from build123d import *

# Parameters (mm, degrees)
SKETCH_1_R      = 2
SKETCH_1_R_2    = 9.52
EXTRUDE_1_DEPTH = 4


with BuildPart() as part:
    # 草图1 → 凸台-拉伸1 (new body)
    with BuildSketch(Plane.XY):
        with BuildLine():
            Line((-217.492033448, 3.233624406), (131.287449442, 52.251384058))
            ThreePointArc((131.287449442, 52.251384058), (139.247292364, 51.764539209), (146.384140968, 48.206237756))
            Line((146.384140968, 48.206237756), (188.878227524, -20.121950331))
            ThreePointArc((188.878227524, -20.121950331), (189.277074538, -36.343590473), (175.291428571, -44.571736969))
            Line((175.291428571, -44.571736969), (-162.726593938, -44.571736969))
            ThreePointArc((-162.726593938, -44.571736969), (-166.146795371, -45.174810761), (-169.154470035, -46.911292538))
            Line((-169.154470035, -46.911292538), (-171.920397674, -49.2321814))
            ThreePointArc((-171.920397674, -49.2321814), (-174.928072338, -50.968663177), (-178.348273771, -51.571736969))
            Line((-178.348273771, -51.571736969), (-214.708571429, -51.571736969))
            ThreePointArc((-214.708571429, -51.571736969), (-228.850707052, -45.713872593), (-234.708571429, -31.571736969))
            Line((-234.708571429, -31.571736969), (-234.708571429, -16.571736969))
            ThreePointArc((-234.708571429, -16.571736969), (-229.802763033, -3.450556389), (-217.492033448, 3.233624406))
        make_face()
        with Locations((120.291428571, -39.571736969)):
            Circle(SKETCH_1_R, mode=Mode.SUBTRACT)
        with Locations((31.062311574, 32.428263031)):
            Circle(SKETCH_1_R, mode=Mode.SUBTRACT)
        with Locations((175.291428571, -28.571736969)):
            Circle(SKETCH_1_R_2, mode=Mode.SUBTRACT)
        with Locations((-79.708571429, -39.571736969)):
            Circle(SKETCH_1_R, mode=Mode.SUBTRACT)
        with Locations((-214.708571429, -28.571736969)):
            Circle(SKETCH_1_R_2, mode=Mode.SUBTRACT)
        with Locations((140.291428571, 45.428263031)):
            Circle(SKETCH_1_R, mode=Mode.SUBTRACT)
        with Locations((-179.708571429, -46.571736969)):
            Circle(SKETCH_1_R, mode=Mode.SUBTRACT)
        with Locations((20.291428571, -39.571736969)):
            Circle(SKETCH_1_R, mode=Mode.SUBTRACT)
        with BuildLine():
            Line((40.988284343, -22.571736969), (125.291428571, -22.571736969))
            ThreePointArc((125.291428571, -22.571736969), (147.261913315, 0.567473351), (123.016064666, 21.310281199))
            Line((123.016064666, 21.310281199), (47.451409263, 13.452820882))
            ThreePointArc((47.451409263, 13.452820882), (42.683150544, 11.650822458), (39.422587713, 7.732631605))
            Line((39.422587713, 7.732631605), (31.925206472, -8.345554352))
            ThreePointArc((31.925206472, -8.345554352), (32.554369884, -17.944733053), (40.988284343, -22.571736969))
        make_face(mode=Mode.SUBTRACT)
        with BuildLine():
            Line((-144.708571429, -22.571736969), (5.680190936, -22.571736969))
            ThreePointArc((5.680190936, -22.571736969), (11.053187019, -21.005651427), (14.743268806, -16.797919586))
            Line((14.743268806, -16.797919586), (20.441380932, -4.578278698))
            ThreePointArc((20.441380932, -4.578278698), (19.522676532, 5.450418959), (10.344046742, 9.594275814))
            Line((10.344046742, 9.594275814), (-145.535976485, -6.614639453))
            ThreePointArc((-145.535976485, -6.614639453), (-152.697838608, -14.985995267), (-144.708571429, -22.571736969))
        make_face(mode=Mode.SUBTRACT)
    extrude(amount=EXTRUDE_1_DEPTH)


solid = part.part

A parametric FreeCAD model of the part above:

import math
import FreeCAD as App
import Part
import Sketcher
from FreeCAD import Vector
Q = App.Units.Quantity

doc = App.newDocument("Part")
body = doc.addObject("PartDesign::Body", "Body")

# Sketch on XY plane
sketch1 = body.newObject("Sketcher::SketchObject", "Sketch")
sketch1.AttachmentSupport = (doc.getObject("XY_Plane"), [""])
sketch1.MapMode = "FlatFace"
sketch1.addGeometry(Part.LineSegment(Vector(131.287449, 52.251384, 0), Vector(-217.492033, 3.233624, 0)), False)
sketch1.addGeometry(Part.ArcOfCircle(Part.Circle(Vector(-214.708571, -16.571737, 0), Vector(0, 0, 1), 20), math.radians(98), math.radians(180)), False)
sketch1.addGeometry(Part.LineSegment(Vector(-234.708571, -16.571737, 0), Vector(-234.708571, -31.571737, 0)), False)
sketch1.addGeometry(Part.ArcOfCircle(Part.Circle(Vector(-214.708571, -31.571737, 0), Vector(0, 0, 1), 20), math.radians(-180), math.radians(-90)), False)
sketch1.addGeometry(Part.LineSegment(Vector(-214.708571, -51.571737, 0), Vector(-178.348274, -51.571737, 0)), False)
sketch1.addGeometry(Part.ArcOfCircle(Part.Circle(Vector(-178.348274, -41.571737, 0), Vector(0, 0, 1), 10), math.radians(-90), math.radians(-50)), False)
sketch1.addGeometry(Part.LineSegment(Vector(-171.920398, -49.232181, 0), Vector(-169.15447, -46.911293, 0)), False)
sketch1.addGeometry(Part.ArcOfCircle(Part.Circle(Vector(-162.726594, -54.571737, 0), Vector(0, 0, 1), 10), math.radians(90), math.radians(130)), False)
sketch1.addGeometry(Part.LineSegment(Vector(-162.726594, -44.571737, 0), Vector(175.291429, -44.571737, 0)), False)
sketch1.addGeometry(Part.ArcOfCircle(Part.Circle(Vector(175.291429, -28.571737, 0), Vector(0, 0, 1), 16), math.radians(-90), math.radians(31.877956)), False)
sketch1.addGeometry(Part.LineSegment(Vector(188.878228, -20.12195, 0), Vector(146.384141, 48.206238, 0)), False)
sketch1.addGeometry(Part.ArcOfCircle(Part.Circle(Vector(134.070911, 32.446023, 0), Vector(0, 0, 1), 20), math.radians(52), math.radians(98)), False)
sketch1.addGeometry(Part.Circle(Vector(120.291429, -39.571737, 0), Vector(0, 0, 1), 2), False)
sketch1.addGeometry(Part.Circle(Vector(175.291429, -28.571737, 0), Vector(0, 0, 1), 9.52), False)
sketch1.addGeometry(Part.Circle(Vector(20.291429, -39.571737, 0), Vector(0, 0, 1), 2), False)
sketch1.addGeometry(Part.Circle(Vector(-79.708571, -39.571737, 0), Vector(0, 0, 1), 2), False)
sketch1.addGeometry(Part.Circle(Vector(-179.708571, -46.571737, 0), Vector(0, 0, 1), 2), False)
sketch1.addGeometry(Part.Circle(Vector(-214.708571, -28.571737, 0), Vector(0, 0, 1), 9.52), False)
sketch1.addGeometry(Part.ArcOfCircle(Part.Circle(Vector(-144.708571, -14.571737, 0), Vector(0, 0, 1), 8), math.radians(95.936468), math.radians(270)), False)
sketch1.addGeometry(Part.LineSegment(Vector(-145.535976, -6.614639, 0), Vector(10.344047, 9.594276, 0)), False)
sketch1.addGeometry(Part.ArcOfCircle(Part.Circle(Vector(11.378303, -0.352096, 0), Vector(0, 0, 1), 10), math.radians(-25), math.radians(95.936468)), False)
sketch1.addGeometry(Part.LineSegment(Vector(20.441381, -4.578279, 0), Vector(14.743269, -16.79792, 0)), False)
sketch1.addGeometry(Part.ArcOfCircle(Part.Circle(Vector(5.680191, -12.571737, 0), Vector(0, 0, 1), 10), math.radians(-90), math.radians(-25)), False)
sketch1.addGeometry(Part.LineSegment(Vector(5.680191, -22.571737, 0), Vector(-144.708571, -22.571737, 0)), False)
sketch1.addGeometry(Part.ArcOfCircle(Part.Circle(Vector(40.988284, -12.571737, 0), Vector(0, 0, 1), 10), math.radians(155), math.radians(270)), False)
sketch1.addGeometry(Part.LineSegment(Vector(31.925206, -8.345554, 0), Vector(39.422588, 7.732632, 0)), False)
sketch1.addGeometry(Part.ArcOfCircle(Part.Circle(Vector(48.485666, 3.506449, 0), Vector(0, 0, 1), 10), math.radians(95.936468), math.radians(155)), False)
sketch1.addGeometry(Part.LineSegment(Vector(47.451409, 13.452821, 0), Vector(123.016065, 21.310281, 0)), False)
sketch1.addGeometry(Part.ArcOfCircle(Part.Circle(Vector(125.291429, -0.571737, 0), Vector(0, 0, 1), 22), math.radians(-90), math.radians(95.936468)), False)
sketch1.addGeometry(Part.LineSegment(Vector(125.291429, -22.571737, 0), Vector(40.988284, -22.571737, 0)), False)
sketch1.addGeometry(Part.Circle(Vector(140.291429, 45.428263, 0), Vector(0, 0, 1), 2), False)
sketch1.addGeometry(Part.Circle(Vector(31.062312, 32.428263, 0), Vector(0, 0, 1), 2), False)
sketch1.addConstraint(Sketcher.Constraint("Tangent", 0, 2, 1, 1))
sketch1.addConstraint(Sketcher.Constraint("Tangent", 1, 2, 2, 1))
sketch1.addConstraint(Sketcher.Constraint("Tangent", 2, 2, 3, 1))
sketch1.addConstraint(Sketcher.Constraint("Tangent", 3, 2, 4, 1))
sketch1.addConstraint(Sketcher.Constraint("Tangent", 4, 2, 5, 1))
sketch1.addConstraint(Sketcher.Constraint("Tangent", 5, 2, 6, 1))
sketch1.addConstraint(Sketcher.Constraint("Tangent", 6, 2, 7, 2))
sketch1.addConstraint(Sketcher.Constraint("Tangent", 7, 1, 8, 1))
sketch1.addConstraint(Sketcher.Constraint("Tangent", 8, 2, 9, 1))
sketch1.addConstraint(Sketcher.Constraint("Tangent", 9, 2, 10, 1))
sketch1.addConstraint(Sketcher.Constraint("Coincident", 10, 2, 11, 1))
sketch1.addConstraint(Sketcher.Constraint("Tangent", 11, 2, 0, 1))
sketch1.addConstraint(Sketcher.Constraint("Tangent", 18, 1, 19, 1))
sketch1.addConstraint(Sketcher.Constraint("Tangent", 19, 2, 20, 2))
sketch1.addConstraint(Sketcher.Constraint("Tangent", 20, 1, 21, 1))
sketch1.addConstraint(Sketcher.Constraint("Tangent", 21, 2, 22, 2))
sketch1.addConstraint(Sketcher.Constraint("Tangent", 22, 1, 23, 1))
sketch1.addConstraint(Sketcher.Constraint("Tangent", 23, 2, 18, 2))
sketch1.addConstraint(Sketcher.Constraint("Tangent", 24, 1, 25, 1))
sketch1.addConstraint(Sketcher.Constraint("Tangent", 25, 2, 26, 2))
sketch1.addConstraint(Sketcher.Constraint("Tangent", 26, 1, 27, 1))
sketch1.addConstraint(Sketcher.Constraint("Tangent", 27, 2, 28, 2))
sketch1.addConstraint(Sketcher.Constraint("Tangent", 28, 1, 29, 1))
sketch1.addConstraint(Sketcher.Constraint("Tangent", 29, 2, 24, 2))
sketch1.addConstraint(Sketcher.Constraint("Vertical", 2))
sketch1.addConstraint(Sketcher.Constraint("Horizontal", 4))
sketch1.addConstraint(Sketcher.Constraint("Horizontal", 8))
sketch1.addConstraint(Sketcher.Constraint("Horizontal", 23))
sketch1.addConstraint(Sketcher.Constraint("Horizontal", 29))
sketch1.addConstraint(Sketcher.Constraint("Coincident", 13, 3, 9, 3))
sketch1.addConstraint(Sketcher.Constraint("Equal", 1, 3))
sketch1.addConstraint(Sketcher.Constraint("Equal", 5, 7))
sketch1.addConstraint(Sketcher.Constraint("Equal", 3, 11))
sketch1.addConstraint(Sketcher.Constraint("Equal", 12, 14))
sketch1.addConstraint(Sketcher.Constraint("Equal", 14, 15))
sketch1.addConstraint(Sketcher.Constraint("Equal", 15, 16))
sketch1.addConstraint(Sketcher.Constraint("Equal", 13, 17))
sketch1.addConstraint(Sketcher.Constraint("Equal", 7, 20))
sketch1.addConstraint(Sketcher.Constraint("Equal", 20, 22))
sketch1.addConstraint(Sketcher.Constraint("Equal", 22, 24))
sketch1.addConstraint(Sketcher.Constraint("Equal", 24, 26))
sketch1.addConstraint(Sketcher.Constraint("Equal", 16, 30))
sketch1.addConstraint(Sketcher.Constraint("Equal", 30, 31))
sketch1.addConstraint(Sketcher.Constraint("Parallel", 21, 25))
sketch1.addConstraint(Sketcher.Constraint("Parallel", 19, 27))
sketch1.addConstraint(Sketcher.Constraint("Horizontal", 12, 3, 14, 3))
sketch1.addConstraint(Sketcher.Constraint("Horizontal", 14, 3, 15, 3))
sketch1.addConstraint(Sketcher.Constraint("Horizontal", 13, 3, 17, 3))
sketch1.addConstraint(Sketcher.Constraint("Horizontal", 22, 3, 24, 3))
sketch1.addConstraint(Sketcher.Constraint("Vertical", 3, 3, 17, 3))
sketch1.addConstraint(Sketcher.Constraint("Diameter", 12, Q("4 mm")))
sketch1.addConstraint(Sketcher.Constraint("Radius", 1, Q("20 mm")))
sketch1.addConstraint(Sketcher.Constraint("Radius", 5, Q("10 mm")))
sketch1.addConstraint(Sketcher.Constraint("Radius", 9, Q("16 mm")))
sketch1.addConstraint(Sketcher.Constraint("Radius", 18, Q("8 mm")))
sketch1.addConstraint(Sketcher.Constraint("Radius", 28, Q("22 mm")))
sketch1.addConstraint(Sketcher.Constraint("Diameter", 13, Q("19.04 mm")))
sketch1.addConstraint(Sketcher.Constraint("DistanceY", 2, 2, 2, 1, Q("15 mm")))
sketch1.addConstraint(Sketcher.Constraint("Angle", 0, Q("-172 deg")))
sketch1.addConstraint(Sketcher.Constraint("Angle", 6, Q("40 deg")))
sketch1.addConstraint(Sketcher.Constraint("Angle", 21, Q("-115 deg")))
sketch1.addConstraint(Sketcher.Constraint("DistanceY", 7, 3, 5, 3, Q("13 mm")))
sketch1.addConstraint(Sketcher.Constraint("DistanceX", 3, 3, 9, 3, Q("390 mm")))
sketch1.addConstraint(Sketcher.Constraint("DistanceX", 12, 3, 9, 3, Q("55 mm")))
sketch1.addConstraint(Sketcher.Constraint("DistanceY", 12, 3, 9, 3, Q("11 mm")))
sketch1.addConstraint(Sketcher.Constraint("DistanceX", 14, 3, 12, 3, Q("100 mm")))
sketch1.addConstraint(Sketcher.Constraint("DistanceX", 15, 3, 14, 3, Q("100 mm")))
sketch1.addConstraint(Sketcher.Constraint("DistanceY", 16, 3, 5, 3, Q("5 mm")))
sketch1.addConstraint(Sketcher.Constraint("DistanceX", 3, 3, 16, 3, Q("35 mm")))
sketch1.addConstraint(Sketcher.Constraint("DistanceY", 5, 3, 18, 3, Q("27 mm")))
sketch1.addConstraint(Sketcher.Constraint("DistanceX", 16, 3, 18, 3, Q("35 mm")))
sketch1.addConstraint(Sketcher.Constraint("DistanceX", 12, 3, 28, 3, Q("5 mm")))
sketch1.addConstraint(Sketcher.Constraint("DistanceX", 28, 3, 30, 3, Q("15 mm")))
sketch1.addConstraint(Sketcher.Constraint("DistanceY", 28, 3, 30, 3, Q("46 mm")))
sketch1.addConstraint(Sketcher.Constraint("DistanceY", 24, 3, 31, 3, Q("45 mm")))
sketch1.addConstraint(Sketcher.Constraint("DistanceX", 16, 3, 6, 2, Q("10.554101 mm")))
sketch1.addConstraint(Sketcher.Constraint("DistanceX", 9, 3, 9, 2, Q("13.586799 mm")))
sketch1.addConstraint(Sketcher.Constraint("Distance", 0, Q("352.207139 mm")))
sketch1.addConstraint(Sketcher.Constraint("Distance", 21, Q("13.482882 mm")))
sketch1.addConstraint(Sketcher.Constraint("Distance", 27, Q("75.972079 mm")))
sketch1.addConstraint(Sketcher.Constraint("DistanceX", 23, 2, 23, 1, Q("150.388762 mm")))
sketch1.addConstraint(Sketcher.Constraint("DistanceX", 1, 3, -1, 1, Q("214.708571 mm")))
sketch1.addConstraint(Sketcher.Constraint("DistanceY", -1, 1, 26, 3, Q("3.506449 mm")))
sketch1.addConstraint(Sketcher.Constraint("DistanceX", -1, 1, 31, 3, Q("31.062312 mm")))
pad1 = body.newObject("PartDesign::Pad", "Pad")
pad1.Profile = sketch1
pad1.Length = 4

doc.recompute()
